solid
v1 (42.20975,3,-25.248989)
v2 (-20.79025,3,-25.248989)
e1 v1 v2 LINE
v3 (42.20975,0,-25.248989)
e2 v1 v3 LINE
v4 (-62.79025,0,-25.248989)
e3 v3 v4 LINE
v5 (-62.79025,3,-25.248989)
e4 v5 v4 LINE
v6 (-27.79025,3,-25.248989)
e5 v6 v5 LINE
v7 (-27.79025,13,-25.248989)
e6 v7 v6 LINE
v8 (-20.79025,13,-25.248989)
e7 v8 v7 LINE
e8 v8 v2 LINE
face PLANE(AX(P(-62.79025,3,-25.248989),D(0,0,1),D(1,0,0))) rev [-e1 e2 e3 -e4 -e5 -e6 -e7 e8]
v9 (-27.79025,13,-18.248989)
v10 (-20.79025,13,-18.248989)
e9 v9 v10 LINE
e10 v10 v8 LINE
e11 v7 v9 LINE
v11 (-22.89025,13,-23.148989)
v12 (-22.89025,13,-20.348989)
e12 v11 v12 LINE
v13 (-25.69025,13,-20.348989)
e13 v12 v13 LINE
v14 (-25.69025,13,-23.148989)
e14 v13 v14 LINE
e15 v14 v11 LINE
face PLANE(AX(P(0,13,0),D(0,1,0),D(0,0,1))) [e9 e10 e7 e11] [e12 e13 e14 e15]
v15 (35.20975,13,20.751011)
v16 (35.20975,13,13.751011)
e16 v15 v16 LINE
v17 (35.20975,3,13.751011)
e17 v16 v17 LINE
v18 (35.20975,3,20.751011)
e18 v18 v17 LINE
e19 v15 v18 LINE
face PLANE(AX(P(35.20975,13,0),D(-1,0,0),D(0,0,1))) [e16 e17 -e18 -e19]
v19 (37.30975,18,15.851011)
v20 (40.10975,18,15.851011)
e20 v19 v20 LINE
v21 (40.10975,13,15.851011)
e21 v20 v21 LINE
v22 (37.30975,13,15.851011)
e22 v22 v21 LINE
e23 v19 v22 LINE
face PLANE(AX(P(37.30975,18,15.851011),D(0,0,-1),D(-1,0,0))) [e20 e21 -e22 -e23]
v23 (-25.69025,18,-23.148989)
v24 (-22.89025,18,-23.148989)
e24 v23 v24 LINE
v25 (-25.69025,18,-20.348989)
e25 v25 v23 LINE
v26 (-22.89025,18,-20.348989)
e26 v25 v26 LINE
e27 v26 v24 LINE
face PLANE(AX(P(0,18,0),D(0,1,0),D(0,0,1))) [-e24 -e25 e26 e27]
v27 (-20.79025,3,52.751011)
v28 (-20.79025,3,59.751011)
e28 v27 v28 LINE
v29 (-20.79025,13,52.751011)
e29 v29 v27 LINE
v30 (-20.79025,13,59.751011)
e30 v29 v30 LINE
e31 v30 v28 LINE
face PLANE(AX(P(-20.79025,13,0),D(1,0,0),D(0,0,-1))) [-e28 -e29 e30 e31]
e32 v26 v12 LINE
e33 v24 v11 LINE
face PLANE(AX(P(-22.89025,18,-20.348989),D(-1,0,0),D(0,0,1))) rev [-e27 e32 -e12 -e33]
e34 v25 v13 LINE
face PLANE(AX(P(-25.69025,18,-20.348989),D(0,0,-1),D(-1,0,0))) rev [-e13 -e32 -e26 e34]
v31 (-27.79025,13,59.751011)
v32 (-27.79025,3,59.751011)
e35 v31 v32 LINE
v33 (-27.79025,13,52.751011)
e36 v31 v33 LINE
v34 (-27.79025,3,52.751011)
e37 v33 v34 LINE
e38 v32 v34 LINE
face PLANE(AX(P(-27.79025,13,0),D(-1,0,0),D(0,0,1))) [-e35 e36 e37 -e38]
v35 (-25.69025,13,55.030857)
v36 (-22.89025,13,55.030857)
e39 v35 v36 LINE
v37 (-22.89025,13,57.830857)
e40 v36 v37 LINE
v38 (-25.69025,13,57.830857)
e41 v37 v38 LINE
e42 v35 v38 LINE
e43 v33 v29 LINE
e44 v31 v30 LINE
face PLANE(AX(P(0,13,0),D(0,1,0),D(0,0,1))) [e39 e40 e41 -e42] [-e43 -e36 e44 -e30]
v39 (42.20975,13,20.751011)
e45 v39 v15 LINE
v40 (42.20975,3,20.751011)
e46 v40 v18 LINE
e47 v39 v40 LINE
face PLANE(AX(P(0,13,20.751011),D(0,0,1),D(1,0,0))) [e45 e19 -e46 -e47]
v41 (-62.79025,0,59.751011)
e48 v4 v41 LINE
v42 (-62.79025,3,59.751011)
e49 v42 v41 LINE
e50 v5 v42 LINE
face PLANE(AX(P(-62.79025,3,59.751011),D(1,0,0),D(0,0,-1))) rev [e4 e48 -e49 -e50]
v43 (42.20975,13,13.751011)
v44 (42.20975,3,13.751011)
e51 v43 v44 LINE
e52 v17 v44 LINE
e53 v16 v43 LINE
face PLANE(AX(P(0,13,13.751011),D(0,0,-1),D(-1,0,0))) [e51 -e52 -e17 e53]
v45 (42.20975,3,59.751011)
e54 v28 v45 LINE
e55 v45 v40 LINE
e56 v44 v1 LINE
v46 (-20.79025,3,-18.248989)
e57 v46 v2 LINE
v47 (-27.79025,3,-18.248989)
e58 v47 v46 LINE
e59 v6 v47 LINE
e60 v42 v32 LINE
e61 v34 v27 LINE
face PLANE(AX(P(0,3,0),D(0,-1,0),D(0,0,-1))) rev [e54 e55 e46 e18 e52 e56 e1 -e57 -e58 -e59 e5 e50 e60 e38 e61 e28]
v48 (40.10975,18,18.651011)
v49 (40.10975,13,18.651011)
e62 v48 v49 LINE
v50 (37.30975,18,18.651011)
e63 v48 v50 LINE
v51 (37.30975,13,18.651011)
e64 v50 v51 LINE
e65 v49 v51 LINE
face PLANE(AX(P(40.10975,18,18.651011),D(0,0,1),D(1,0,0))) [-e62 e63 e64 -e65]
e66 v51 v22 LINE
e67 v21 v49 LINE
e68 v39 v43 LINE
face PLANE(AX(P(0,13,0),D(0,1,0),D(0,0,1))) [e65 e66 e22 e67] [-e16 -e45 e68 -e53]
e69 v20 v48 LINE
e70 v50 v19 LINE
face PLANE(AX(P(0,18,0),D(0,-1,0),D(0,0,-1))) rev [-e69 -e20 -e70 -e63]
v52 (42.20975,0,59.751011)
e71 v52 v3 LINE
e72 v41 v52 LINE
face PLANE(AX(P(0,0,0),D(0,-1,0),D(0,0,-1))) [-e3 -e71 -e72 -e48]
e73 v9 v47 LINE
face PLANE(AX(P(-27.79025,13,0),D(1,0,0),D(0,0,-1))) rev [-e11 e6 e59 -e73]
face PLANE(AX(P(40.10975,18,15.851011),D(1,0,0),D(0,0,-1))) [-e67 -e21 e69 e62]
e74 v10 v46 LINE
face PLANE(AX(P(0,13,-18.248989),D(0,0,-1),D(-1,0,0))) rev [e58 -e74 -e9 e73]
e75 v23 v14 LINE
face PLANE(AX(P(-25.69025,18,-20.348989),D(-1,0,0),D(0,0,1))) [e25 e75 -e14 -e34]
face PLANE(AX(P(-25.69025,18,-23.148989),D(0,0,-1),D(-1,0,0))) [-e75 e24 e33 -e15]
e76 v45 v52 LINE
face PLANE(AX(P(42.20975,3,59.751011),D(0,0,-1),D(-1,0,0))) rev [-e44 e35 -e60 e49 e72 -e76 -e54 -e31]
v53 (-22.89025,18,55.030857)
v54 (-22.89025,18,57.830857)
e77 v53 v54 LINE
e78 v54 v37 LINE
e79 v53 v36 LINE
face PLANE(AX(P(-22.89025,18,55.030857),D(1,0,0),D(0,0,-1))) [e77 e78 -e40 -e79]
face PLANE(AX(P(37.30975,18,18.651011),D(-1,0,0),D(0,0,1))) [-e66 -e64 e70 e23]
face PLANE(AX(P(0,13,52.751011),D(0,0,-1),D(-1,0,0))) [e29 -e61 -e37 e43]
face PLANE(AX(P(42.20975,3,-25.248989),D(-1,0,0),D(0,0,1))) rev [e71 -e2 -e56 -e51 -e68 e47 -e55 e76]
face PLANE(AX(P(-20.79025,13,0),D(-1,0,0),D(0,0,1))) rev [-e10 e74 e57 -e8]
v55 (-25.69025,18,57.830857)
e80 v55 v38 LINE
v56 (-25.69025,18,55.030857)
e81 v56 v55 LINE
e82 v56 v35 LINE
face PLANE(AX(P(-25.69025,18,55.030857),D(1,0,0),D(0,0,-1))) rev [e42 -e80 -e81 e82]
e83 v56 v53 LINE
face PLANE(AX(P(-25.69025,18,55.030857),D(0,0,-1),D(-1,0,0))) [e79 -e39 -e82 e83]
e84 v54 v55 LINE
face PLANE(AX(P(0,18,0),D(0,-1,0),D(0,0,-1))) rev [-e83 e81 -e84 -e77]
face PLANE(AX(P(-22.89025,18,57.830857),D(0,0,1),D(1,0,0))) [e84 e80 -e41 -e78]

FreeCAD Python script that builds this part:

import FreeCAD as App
import Part
import Sketcher

V = App.Vector

doc = App.newDocument("Part")
body = doc.addObject("PartDesign::Body", "Body")

sketch1 = body.newObject("Sketcher::SketchObject", "Sketch")
sketch1.AttachmentSupport = (doc.getObject("XZ_Plane"), [""])
sketch1.MapMode = "FlatFace"
sketch1.addGeometry(Part.LineSegment(V(-62.79025, -25.248989, 0), V(-62.79025, 59.751011, 0)), False)
sketch1.addGeometry(Part.LineSegment(V(-62.79025, 59.751011, 0), V(42.20975, 59.751011, 0)), False)
sketch1.addGeometry(Part.LineSegment(V(42.20975, 59.751011, 0), V(42.20975, -25.248989, 0)), False)
sketch1.addGeometry(Part.LineSegment(V(42.20975, -25.248989, 0), V(-62.79025, -25.248989, 0)), False)
sketch1.addConstraint(Sketcher.Constraint("Coincident", 0, 2, 1, 1))
sketch1.addConstraint(Sketcher.Constraint("Coincident", 1, 2, 2, 1))
sketch1.addConstraint(Sketcher.Constraint("Coincident", 2, 2, 3, 1))
sketch1.addConstraint(Sketcher.Constraint("Coincident", 3, 2, 0, 1))
sketch1.addConstraint(Sketcher.Constraint("Vertical", 0))
sketch1.addConstraint(Sketcher.Constraint("Horizontal", 1))
sketch1.addConstraint(Sketcher.Constraint("Vertical", 2))
sketch1.addConstraint(Sketcher.Constraint("Horizontal", 3))
sketch1.addConstraint(Sketcher.Constraint("DistanceX", 1, 1, 1, 2, 105.0))
sketch1.addConstraint(Sketcher.Constraint("DistanceY", 0, 1, 0, 2, 85.0))
sketch1.addConstraint(Sketcher.Constraint("DistanceX", 0, 2, -1, 1, 62.79025))
sketch1.addConstraint(Sketcher.Constraint("DistanceY", -1, 1, 0, 2, 59.751011))
pad1 = body.newObject("PartDesign::Pad", "Pad")
pad1.Profile = sketch1
pad1.Length = 3
pad1.Reversed = True

sketch2 = body.newObject("Sketcher::SketchObject", "Sketch001")
sketch2.AttachmentSupport = (doc.getObject("XZ_Plane"), [""])
sketch2.MapMode = "FlatFace"
sketch2.AttachmentOffset = App.Placement(V(0, 0, -3), App.Rotation())
sketch2.addGeometry(Part.LineSegment(V(-25.69025, 55.030857, 0), V(-25.69025, 57.830857, 0)), False)
sketch2.addGeometry(Part.LineSegment(V(-25.69025, 57.830857, 0), V(-22.89025, 57.830857, 0)), False)
sketch2.addGeometry(Part.LineSegment(V(-22.89025, 57.830857, 0), V(-22.89025, 55.030857, 0)), False)
sketch2.addGeometry(Part.LineSegment(V(-22.89025, 55.030857, 0), V(-25.69025, 55.030857, 0)), False)
sketch2.addConstraint(Sketcher.Constraint("Coincident", 0, 2, 1, 1))
sketch2.addConstraint(Sketcher.Constraint("Coincident", 1, 2, 2, 1))
sketch2.addConstraint(Sketcher.Constraint("Coincident", 2, 2, 3, 1))
sketch2.addConstraint(Sketcher.Constraint("Coincident", 3, 2, 0, 1))
sketch2.addConstraint(Sketcher.Constraint("Vertical", 0))
sketch2.addConstraint(Sketcher.Constraint("Horizontal", 1))
sketch2.addConstraint(Sketcher.Constraint("Vertical", 2))
sketch2.addConstraint(Sketcher.Constraint("Horizontal", 3))
sketch2.addConstraint(Sketcher.Constraint("Equal", 3, 0))
sketch2.addConstraint(Sketcher.Constraint("DistanceX", 1, 1, 1, 2, 2.8))
sketch2.addConstraint(Sketcher.Constraint("DistanceX", 0, 2, -1, 1, 25.69025))
sketch2.addConstraint(Sketcher.Constraint("DistanceY", -1, 1, 0, 2, 57.830857))
pad2 = body.newObject("PartDesign::Pad", "Pad001")
pad2.Profile = sketch2
pad2.Length = 15
pad2.Reversed = True

sketch3 = body.newObject("Sketcher::SketchObject", "Sketch002")
sketch3.AttachmentSupport = (doc.getObject("XZ_Plane"), [""])
sketch3.MapMode = "FlatFace"
sketch3.AttachmentOffset = App.Placement(V(0, 0, -3), App.Rotation())
sketch3.addGeometry(Part.LineSegment(V(-27.79025, 52.751011, 0), V(-27.79025, 59.751011, 0)), False)
sketch3.addGeometry(Part.LineSegment(V(-27.79025, 59.751011, 0), V(-20.79025, 59.751011, 0)), False)
sketch3.addGeometry(Part.LineSegment(V(-20.79025, 59.751011, 0), V(-20.79025, 52.751011, 0)), False)
sketch3.addGeometry(Part.LineSegment(V(-20.79025, 52.751011, 0), V(-27.79025, 52.751011, 0)), False)
sketch3.addGeometry(Part.LineSegment(V(-22.89025, 57.830857, 0), V(-25.69025, 57.830857, 0)), False)
sketch3.addGeometry(Part.LineSegment(V(-25.69025, 57.830857, 0), V(-25.69025, 55.030857, 0)), False)
sketch3.addGeometry(Part.LineSegment(V(-25.69025, 55.030857, 0), V(-22.89025, 55.030857, 0)), False)
sketch3.addGeometry(Part.LineSegment(V(-22.89025, 55.030857, 0), V(-22.89025, 57.830857, 0)), False)
sketch3.addConstraint(Sketcher.Constraint("Coincident", 0, 2, 1, 1))
sketch3.addConstraint(Sketcher.Constraint("Coincident", 1, 2, 2, 1))
sketch3.addConstraint(Sketcher.Constraint("Coincident", 2, 2, 3, 1))
sketch3.addConstraint(Sketcher.Constraint("Coincident", 3, 2, 0, 1))
sketch3.addConstraint(Sketcher.Constraint("Coincident", 4, 2, 5, 1))
sketch3.addConstraint(Sketcher.Constraint("Coincident", 5, 2, 6, 1))
sketch3.addConstraint(Sketcher.Constraint("Coincident", 6, 2, 7, 1))
sketch3.addConstraint(Sketcher.Constraint("Coincident", 7, 2, 4, 1))
sketch3.addConstraint(Sketcher.Constraint("Vertical", 0))
sketch3.addConstraint(Sketcher.Constraint("Horizontal", 1))
sketch3.addConstraint(Sketcher.Constraint("Vertical", 2))
sketch3.addConstraint(Sketcher.Constraint("Horizontal", 3))
sketch3.addConstraint(Sketcher.Constraint("Horizontal", 4))
sketch3.addConstraint(Sketcher.Constraint("Vertical", 5))
sketch3.addConstraint(Sketcher.Constraint("Horizontal", 6))
sketch3.addConstraint(Sketcher.Constraint("Vertical", 7))
sketch3.addConstraint(Sketcher.Constraint("Equal", 3, 0))
sketch3.addConstraint(Sketcher.Constraint("Equal", 6, 5))
sketch3.addConstraint(Sketcher.Constraint("DistanceX", 1, 1, 1, 2, 7.0))
sketch3.addConstraint(Sketcher.Constraint("DistanceX", 4, 2, 4, 1, 2.8))
sketch3.addConstraint(Sketcher.Constraint("DistanceX", 0, 2, 4, 2, 2.1))
sketch3.addConstraint(Sketcher.Constraint("DistanceX", 0, 2, -1, 1, 27.79025))
sketch3.addConstraint(Sketcher.Constraint("DistanceY", -1, 1, 0, 2, 59.751011))
sketch3.addConstraint(Sketcher.Constraint("DistanceY", -1, 1, 4, 2, 57.830857))
pad3 = body.newObject("PartDesign::Pad", "Pad002")
pad3.Profile = sketch3
pad3.Length = 10
pad3.Reversed = True

sketch4 = body.newObject("Sketcher::SketchObject", "Sketch003")
sketch4.AttachmentSupport = (doc.getObject("XZ_Plane"), [""])
sketch4.MapMode = "FlatFace"
sketch4.AttachmentOffset = App.Placement(V(0, 0, -3), App.Rotation())
sketch4.addGeometry(Part.LineSegment(V(-25.69025, -23.148989, 0), V(-25.69025, -20.348989, 0)), False)
sketch4.addGeometry(Part.LineSegment(V(-25.69025, -20.348989, 0), V(-22.89025, -20.348989, 0)), False)
sketch4.addGeometry(Part.LineSegment(V(-22.89025, -20.348989, 0), V(-22.89025, -23.148989, 0)), False)
sketch4.addGeometry(Part.LineSegment(V(-22.89025, -23.148989, 0), V(-25.69025, -23.148989, 0)), False)
sketch4.addConstraint(Sketcher.Constraint("Coincident", 0, 2, 1, 1))
sketch4.addConstraint(Sketcher.Constraint("Coincident", 1, 2, 2, 1))
sketch4.addConstraint(Sketcher.Constraint("Coincident", 2, 2, 3, 1))
sketch4.addConstraint(Sketcher.Constraint("Coincident", 3, 2, 0, 1))
sketch4.addConstraint(Sketcher.Constraint("Vertical", 0))
sketch4.addConstraint(Sketcher.Constraint("Horizontal", 1))
sketch4.addConstraint(Sketcher.Constraint("Vertical", 2))
sketch4.addConstraint(Sketcher.Constraint("Horizontal", 3))
sketch4.addConstraint(Sketcher.Constraint("Equal", 3, 0))
sketch4.addConstraint(Sketcher.Constraint("DistanceX", 1, 1, 1, 2, 2.8))
sketch4.addConstraint(Sketcher.Constraint("DistanceX", 0, 2, -1, 1, 25.69025))
sketch4.addConstraint(Sketcher.Constraint("DistanceY", 0, 2, -1, 1, 20.348989))
pad4 = body.newObject("PartDesign::Pad", "Pad003")
pad4.Profile = sketch4
pad4.Length = 15
pad4.Reversed = True

sketch5 = body.newObject("Sketcher::SketchObject", "Sketch004")
sketch5.AttachmentSupport = (doc.getObject("XZ_Plane"), [""])
sketch5.MapMode = "FlatFace"
sketch5.AttachmentOffset = App.Placement(V(0, 0, -3), App.Rotation())
sketch5.addGeometry(Part.LineSegment(V(-27.79025, -25.248989, 0), V(-27.79025, -18.248989, 0)), False)
sketch5.addGeometry(Part.LineSegment(V(-27.79025, -18.248989, 0), V(-20.79025, -18.248989, 0)), False)
sketch5.addGeometry(Part.LineSegment(V(-20.79025, -18.248989, 0), V(-20.79025, -25.248989, 0)), False)
sketch5.addGeometry(Part.LineSegment(V(-20.79025, -25.248989, 0), V(-27.79025, -25.248989, 0)), False)
sketch5.addGeometry(Part.LineSegment(V(-22.89025, -20.348989, 0), V(-25.69025, -20.348989, 0)), False)
sketch5.addGeometry(Part.LineSegment(V(-25.69025, -20.348989, 0), V(-25.69025, -23.148989, 0)), False)
sketch5.addGeometry(Part.LineSegment(V(-25.69025, -23.148989, 0), V(-22.89025, -23.148989, 0)), False)
sketch5.addGeometry(Part.LineSegment(V(-22.89025, -23.148989, 0), V(-22.89025, -20.348989, 0)), False)
sketch5.addConstraint(Sketcher.Constraint("Coincident", 0, 2, 1, 1))
sketch5.addConstraint(Sketcher.Constraint("Coincident", 1, 2, 2, 1))
sketch5.addConstraint(Sketcher.Constraint("Coincident", 2, 2, 3, 1))
sketch5.addConstraint(Sketcher.Constraint("Coincident", 3, 2, 0, 1))
sketch5.addConstraint(Sketcher.Constraint("Coincident", 4, 2, 5, 1))
sketch5.addConstraint(Sketcher.Constraint("Coincident", 5, 2, 6, 1))
sketch5.addConstraint(Sketcher.Constraint("Coincident", 6, 2, 7, 1))
sketch5.addConstraint(Sketcher.Constraint("Coincident", 7, 2, 4, 1))
sketch5.addConstraint(Sketcher.Constraint("Vertical", 0))
sketch5.addConstraint(Sketcher.Constraint("Horizontal", 1))
sketch5.addConstraint(Sketcher.Constraint("Vertical", 2))
sketch5.addConstraint(Sketcher.Constraint("Horizontal", 3))
sketch5.addConstraint(Sketcher.Constraint("Horizontal", 4))
sketch5.addConstraint(Sketcher.Constraint("Vertical", 5))
sketch5.addConstraint(Sketcher.Constraint("Horizontal", 6))
sketch5.addConstraint(Sketcher.Constraint("Vertical", 7))
sketch5.addConstraint(Sketcher.Constraint("Equal", 3, 0))
sketch5.addConstraint(Sketcher.Constraint("Equal", 6, 5))
sketch5.addConstraint(Sketcher.Constraint("DistanceX", 1, 1, 1, 2, 7.0))
sketch5.addConstraint(Sketcher.Constraint("DistanceX", 4, 2, 4, 1, 2.8))
sketch5.addConstraint(Sketcher.Constraint("DistanceX", 0, 2, 4, 2, 2.1))
sketch5.addConstraint(Sketcher.Constraint("DistanceY", 4, 2, 0, 2, 2.1))
sketch5.addConstraint(Sketcher.Constraint("DistanceX", 0, 2, -1, 1, 27.79025))
sketch5.addConstraint(Sketcher.Constraint("DistanceY", 0, 2, -1, 1, 18.248989))
pad5 = body.newObject("PartDesign::Pad", "Pad004")
pad5.Profile = sketch5
pad5.Length = 10
pad5.Reversed = True

sketch6 = body.newObject("Sketcher::SketchObject", "Sketch005")
sketch6.AttachmentSupport = (doc.getObject("XZ_Plane"), [""])
sketch6.MapMode = "FlatFace"
sketch6.AttachmentOffset = App.Placement(V(0, 0, -3), App.Rotation())
sketch6.addGeometry(Part.LineSegment(V(37.30975, 15.851011, 0), V(37.30975, 18.651011, 0)), False)
sketch6.addGeometry(Part.LineSegment(V(37.30975, 18.651011, 0), V(40.10975, 18.651011, 0)), False)
sketch6.addGeometry(Part.LineSegment(V(40.10975, 18.651011, 0), V(40.10975, 15.851011, 0)), False)
sketch6.addGeometry(Part.LineSegment(V(40.10975, 15.851011, 0), V(37.30975, 15.851011, 0)), False)
sketch6.addConstraint(Sketcher.Constraint("Coincident", 0, 2, 1, 1))
sketch6.addConstraint(Sketcher.Constraint("Coincident", 1, 2, 2, 1))
sketch6.addConstraint(Sketcher.Constraint("Coincident", 2, 2, 3, 1))
sketch6.addConstraint(Sketcher.Constraint("Coincident", 3, 2, 0, 1))
sketch6.addConstraint(Sketcher.Constraint("Vertical", 0))
sketch6.addConstraint(Sketcher.Constraint("Horizontal", 1))
sketch6.addConstraint(Sketcher.Constraint("Vertical", 2))
sketch6.addConstraint(Sketcher.Constraint("Horizontal", 3))
sketch6.addConstraint(Sketcher.Constraint("Equal", 3, 0))
sketch6.addConstraint(Sketcher.Constraint("DistanceX", 1, 1, 1, 2, 2.8))
sketch6.addConstraint(Sketcher.Constraint("DistanceX", -1, 1, 0, 2, 37.30975))
sketch6.addConstraint(Sketcher.Constraint("DistanceY", -1, 1, 0, 2, 18.651011))
pad6 = body.newObject("PartDesign::Pad", "Pad005")
pad6.Profile = sketch6
pad6.Length = 15
pad6.Reversed = True

sketch7 = body.newObject("Sketcher::SketchObject", "Sketch006")
sketch7.AttachmentSupport = (doc.getObject("XZ_Plane"), [""])
sketch7.MapMode = "FlatFace"
sketch7.AttachmentOffset = App.Placement(V(0, 0, -3), App.Rotation())
sketch7.addGeometry(Part.LineSegment(V(35.20975, 13.751011, 0), V(35.20975, 20.751011, 0)), False)
sketch7.addGeometry(Part.LineSegment(V(35.20975, 20.751011, 0), V(42.20975, 20.751011, 0)), False)
sketch7.addGeometry(Part.LineSegment(V(42.20975, 20.751011, 0), V(42.20975, 13.751011, 0)), False)
sketch7.addGeometry(Part.LineSegment(V(42.20975, 13.751011, 0), V(35.20975, 13.751011, 0)), False)
sketch7.addGeometry(Part.LineSegment(V(40.10975, 18.651011, 0), V(37.30975, 18.651011, 0)), False)
sketch7.addGeometry(Part.LineSegment(V(37.30975, 18.651011, 0), V(37.30975, 15.851011, 0)), False)
sketch7.addGeometry(Part.LineSegment(V(37.30975, 15.851011, 0), V(40.10975, 15.851011, 0)), False)
sketch7.addGeometry(Part.LineSegment(V(40.10975, 15.851011, 0), V(40.10975, 18.651011, 0)), False)
sketch7.addConstraint(Sketcher.Constraint("Coincident", 0, 2, 1, 1))
sketch7.addConstraint(Sketcher.Constraint("Coincident", 1, 2, 2, 1))
sketch7.addConstraint(Sketcher.Constraint("Coincident", 2, 2, 3, 1))
sketch7.addConstraint(Sketcher.Constraint("Coincident", 3, 2, 0, 1))
sketch7.addConstraint(Sketcher.Constraint("Coincident", 4, 2, 5, 1))
sketch7.addConstraint(Sketcher.Constraint("Coincident", 5, 2, 6, 1))
sketch7.addConstraint(Sketcher.Constraint("Coincident", 6, 2, 7, 1))
sketch7.addConstraint(Sketcher.Constraint("Coincident", 7, 2, 4, 1))
sketch7.addConstraint(Sketcher.Constraint("Vertical", 0))
sketch7.addConstraint(Sketcher.Constraint("Horizontal", 1))
sketch7.addConstraint(Sketcher.Constraint("Vertical", 2))
sketch7.addConstraint(Sketcher.Constraint("Horizontal", 3))
sketch7.addConstraint(Sketcher.Constraint("Horizontal", 4))
sketch7.addConstraint(Sketcher.Constraint("Vertical", 5))
sketch7.addConstraint(Sketcher.Constraint("Horizontal", 6))
sketch7.addConstraint(Sketcher.Constraint("Vertical", 7))
sketch7.addConstraint(Sketcher.Constraint("Equal", 3, 0))
sketch7.addConstraint(Sketcher.Constraint("Equal", 6, 5))
sketch7.addConstraint(Sketcher.Constraint("DistanceX", 1, 1, 1, 2, 7.0))
sketch7.addConstraint(Sketcher.Constraint("DistanceX", 4, 2, 4, 1, 2.8))
sketch7.addConstraint(Sketcher.Constraint("DistanceX", 0, 2, 4, 2, 2.1))
sketch7.addConstraint(Sketcher.Constraint("DistanceY", 4, 2, 0, 2, 2.1))
sketch7.addConstraint(Sketcher.Constraint("DistanceX", -1, 1, 0, 2, 35.20975))
sketch7.addConstraint(Sketcher.Constraint("DistanceY", -1, 1, 0, 2, 20.751011))
pad7 = body.newObject("PartDesign::Pad", "Pad006")
pad7.Profile = sketch7
pad7.Length = 10
pad7.Reversed = True

doc.recompute()
